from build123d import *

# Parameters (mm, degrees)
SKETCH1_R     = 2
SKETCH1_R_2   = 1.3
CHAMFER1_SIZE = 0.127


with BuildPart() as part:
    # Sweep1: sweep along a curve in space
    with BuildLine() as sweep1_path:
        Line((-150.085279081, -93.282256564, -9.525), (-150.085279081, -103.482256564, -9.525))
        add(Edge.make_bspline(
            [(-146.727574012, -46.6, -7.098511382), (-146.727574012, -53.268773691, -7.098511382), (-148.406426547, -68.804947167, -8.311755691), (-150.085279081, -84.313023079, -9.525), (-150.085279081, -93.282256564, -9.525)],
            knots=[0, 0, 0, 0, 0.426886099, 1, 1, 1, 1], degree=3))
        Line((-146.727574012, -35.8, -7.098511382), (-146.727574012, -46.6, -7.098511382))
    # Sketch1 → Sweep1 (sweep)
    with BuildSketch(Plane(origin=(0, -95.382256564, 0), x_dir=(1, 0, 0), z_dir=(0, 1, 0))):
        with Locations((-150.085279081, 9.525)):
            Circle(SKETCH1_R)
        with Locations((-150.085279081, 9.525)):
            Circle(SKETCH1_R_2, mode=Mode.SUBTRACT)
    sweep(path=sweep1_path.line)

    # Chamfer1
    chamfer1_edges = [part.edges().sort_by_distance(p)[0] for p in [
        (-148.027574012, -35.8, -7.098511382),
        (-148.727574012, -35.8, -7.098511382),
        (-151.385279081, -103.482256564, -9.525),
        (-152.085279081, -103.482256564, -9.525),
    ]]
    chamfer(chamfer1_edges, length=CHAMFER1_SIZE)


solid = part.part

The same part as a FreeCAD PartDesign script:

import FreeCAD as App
import Part
import Sketcher
Q = App.Units.Quantity


def edges_at(feature, points):
    """Names of the edges that pass closest to the given points."""
    edges = feature.Shape.Edges
    near = lambda p: min(range(len(edges)), key=lambda i: edges[i].distToShape(Part.Vertex(*p))[0])
    return sorted({f"Edge{near(p) + 1}" for p in points})

doc = App.newDocument("Part")
params = doc.addObject("Spreadsheet::Sheet", "Params")
for row, (alias, value) in enumerate([
    ("sketch1_diameter", "4 mm"),
    ("sketch1_diameter2", "2.6 mm"),
    ("sketch2_height", "10.8 mm"),
    ("sketch2_height2", "10.2 mm"),
    ("chamfer_size", "0.127 mm"),
], start=1):
    params.set(f"A{row}", alias)
    params.set(f"B{row}", "=" + value)
    params.setAlias(f"B{row}", alias)

body = doc.addObject("PartDesign::Body", "Body")

# Sketch on XZ plane
sketch1 = body.newObject("Sketcher::SketchObject", "Sketch")
sketch1.AttachmentSupport = (doc.getObject("XZ_Plane"), [""])
sketch1.MapMode = "FlatFace"
sketch1.AttachmentOffset = App.Placement(App.Vector(0, 0, 95.382257), App.Rotation())
sketch1.addGeometry(Part.Circle(App.Vector(-150.1, -9.5, 0), App.Vector(0, 0, 1), 2), False)
sketch1.addGeometry(Part.Circle(App.Vector(-150.1, -9.5, 0), App.Vector(0, 0, 1), 1.3), False)
sketch1.addConstraint(Sketcher.Constraint("Coincident", 1, 3, 0, 3))
sketch1.addConstraint(Sketcher.Constraint("Diameter", 0, Q("4 mm")))
sketch1.addConstraint(Sketcher.Constraint("Diameter", 1, Q("2.6 mm")))
sketch1.addConstraint(Sketcher.Constraint("DistanceY", 0, 3, -1, 1, Q("9.525 mm")))
sketch1.addConstraint(Sketcher.Constraint("DistanceX", 0, 3, -1, 1, Q("150.085279 mm")))
sketch1.setExpression("Constraints[1]", "Params.sketch1_diameter")
sketch1.setExpression("Constraints[2]", "Params.sketch1_diameter2")

# Sketch on an angled plane
sketch2 = body.newObject("Sketcher::SketchObject", "Sketch001")
sketch2.Placement = App.Placement(App.Vector(-46.968502, 0, 64.993661), App.Rotation(App.Vector(0.810509694, 0, 0.585725222), App.Vector(0, 1, 0), App.Vector(-0.585725222, 0, 0.810509694), "ZXY"))
sketch2.addGeometry(Part.LineSegment(App.Vector(-123.081898, -35.8, 0), App.Vector(-123.081898, -46.6, 0)), False)
sketch2.addGeometry(Part.BSplineCurve([App.Vector(-123.081898, -46.6, 0), App.Vector(-123.081898, -53.268774, 0), App.Vector(-125.153252, -68.804947, 0), App.Vector(-127.224606, -84.313023, 0), App.Vector(-127.224606, -93.282257, 0)], [4, 1, 4], [0, 0.426886099, 1], False, 3, [1, 1, 1, 1, 1], False), False)
sketch2.addGeometry(Part.LineSegment(App.Vector(-127.224606, -93.282257, 0), App.Vector(-127.224606, -103.482257, 0)), False)
sketch2.addConstraint(Sketcher.Constraint("Block", 1))
sketch2.addConstraint(Sketcher.Constraint("Coincident", 0, 2, 1, 1))
sketch2.addConstraint(Sketcher.Constraint("Coincident", 1, 2, 2, 1))
sketch2.addConstraint(Sketcher.Constraint("Vertical", 0))
sketch2.addConstraint(Sketcher.Constraint("Vertical", 2))
sketch2.addConstraint(Sketcher.Constraint("DistanceY", 0, 2, 0, 1, Q("10.8 mm")))
sketch2.addConstraint(Sketcher.Constraint("DistanceY", 2, 2, 2, 1, Q("10.2 mm")))
sketch2.setExpression("Constraints[5]", "Params.sketch2_height")
sketch2.setExpression("Constraints[6]", "Params.sketch2_height2")
doc.recompute()

additivepipe = body.newObject("PartDesign::AdditivePipe", "AdditivePipe")
additivepipe.Profile = sketch1
additivepipe.Spine = (sketch2, ["Edge1", "Edge2", "Edge3"])
doc.recompute()

chamfer = body.newObject("PartDesign::Chamfer", "Chamfer")
chamfer.Base = (additivepipe, edges_at(additivepipe, [
    (-148.028, -35.8, -7.099),
    (-148.728, -35.8, -7.099),
    (-151.385, -103.482, -9.525),
    (-152.085, -103.482, -9.525),
]))
chamfer.setExpression("Size", "Params.chamfer_size")

doc.recompute()
